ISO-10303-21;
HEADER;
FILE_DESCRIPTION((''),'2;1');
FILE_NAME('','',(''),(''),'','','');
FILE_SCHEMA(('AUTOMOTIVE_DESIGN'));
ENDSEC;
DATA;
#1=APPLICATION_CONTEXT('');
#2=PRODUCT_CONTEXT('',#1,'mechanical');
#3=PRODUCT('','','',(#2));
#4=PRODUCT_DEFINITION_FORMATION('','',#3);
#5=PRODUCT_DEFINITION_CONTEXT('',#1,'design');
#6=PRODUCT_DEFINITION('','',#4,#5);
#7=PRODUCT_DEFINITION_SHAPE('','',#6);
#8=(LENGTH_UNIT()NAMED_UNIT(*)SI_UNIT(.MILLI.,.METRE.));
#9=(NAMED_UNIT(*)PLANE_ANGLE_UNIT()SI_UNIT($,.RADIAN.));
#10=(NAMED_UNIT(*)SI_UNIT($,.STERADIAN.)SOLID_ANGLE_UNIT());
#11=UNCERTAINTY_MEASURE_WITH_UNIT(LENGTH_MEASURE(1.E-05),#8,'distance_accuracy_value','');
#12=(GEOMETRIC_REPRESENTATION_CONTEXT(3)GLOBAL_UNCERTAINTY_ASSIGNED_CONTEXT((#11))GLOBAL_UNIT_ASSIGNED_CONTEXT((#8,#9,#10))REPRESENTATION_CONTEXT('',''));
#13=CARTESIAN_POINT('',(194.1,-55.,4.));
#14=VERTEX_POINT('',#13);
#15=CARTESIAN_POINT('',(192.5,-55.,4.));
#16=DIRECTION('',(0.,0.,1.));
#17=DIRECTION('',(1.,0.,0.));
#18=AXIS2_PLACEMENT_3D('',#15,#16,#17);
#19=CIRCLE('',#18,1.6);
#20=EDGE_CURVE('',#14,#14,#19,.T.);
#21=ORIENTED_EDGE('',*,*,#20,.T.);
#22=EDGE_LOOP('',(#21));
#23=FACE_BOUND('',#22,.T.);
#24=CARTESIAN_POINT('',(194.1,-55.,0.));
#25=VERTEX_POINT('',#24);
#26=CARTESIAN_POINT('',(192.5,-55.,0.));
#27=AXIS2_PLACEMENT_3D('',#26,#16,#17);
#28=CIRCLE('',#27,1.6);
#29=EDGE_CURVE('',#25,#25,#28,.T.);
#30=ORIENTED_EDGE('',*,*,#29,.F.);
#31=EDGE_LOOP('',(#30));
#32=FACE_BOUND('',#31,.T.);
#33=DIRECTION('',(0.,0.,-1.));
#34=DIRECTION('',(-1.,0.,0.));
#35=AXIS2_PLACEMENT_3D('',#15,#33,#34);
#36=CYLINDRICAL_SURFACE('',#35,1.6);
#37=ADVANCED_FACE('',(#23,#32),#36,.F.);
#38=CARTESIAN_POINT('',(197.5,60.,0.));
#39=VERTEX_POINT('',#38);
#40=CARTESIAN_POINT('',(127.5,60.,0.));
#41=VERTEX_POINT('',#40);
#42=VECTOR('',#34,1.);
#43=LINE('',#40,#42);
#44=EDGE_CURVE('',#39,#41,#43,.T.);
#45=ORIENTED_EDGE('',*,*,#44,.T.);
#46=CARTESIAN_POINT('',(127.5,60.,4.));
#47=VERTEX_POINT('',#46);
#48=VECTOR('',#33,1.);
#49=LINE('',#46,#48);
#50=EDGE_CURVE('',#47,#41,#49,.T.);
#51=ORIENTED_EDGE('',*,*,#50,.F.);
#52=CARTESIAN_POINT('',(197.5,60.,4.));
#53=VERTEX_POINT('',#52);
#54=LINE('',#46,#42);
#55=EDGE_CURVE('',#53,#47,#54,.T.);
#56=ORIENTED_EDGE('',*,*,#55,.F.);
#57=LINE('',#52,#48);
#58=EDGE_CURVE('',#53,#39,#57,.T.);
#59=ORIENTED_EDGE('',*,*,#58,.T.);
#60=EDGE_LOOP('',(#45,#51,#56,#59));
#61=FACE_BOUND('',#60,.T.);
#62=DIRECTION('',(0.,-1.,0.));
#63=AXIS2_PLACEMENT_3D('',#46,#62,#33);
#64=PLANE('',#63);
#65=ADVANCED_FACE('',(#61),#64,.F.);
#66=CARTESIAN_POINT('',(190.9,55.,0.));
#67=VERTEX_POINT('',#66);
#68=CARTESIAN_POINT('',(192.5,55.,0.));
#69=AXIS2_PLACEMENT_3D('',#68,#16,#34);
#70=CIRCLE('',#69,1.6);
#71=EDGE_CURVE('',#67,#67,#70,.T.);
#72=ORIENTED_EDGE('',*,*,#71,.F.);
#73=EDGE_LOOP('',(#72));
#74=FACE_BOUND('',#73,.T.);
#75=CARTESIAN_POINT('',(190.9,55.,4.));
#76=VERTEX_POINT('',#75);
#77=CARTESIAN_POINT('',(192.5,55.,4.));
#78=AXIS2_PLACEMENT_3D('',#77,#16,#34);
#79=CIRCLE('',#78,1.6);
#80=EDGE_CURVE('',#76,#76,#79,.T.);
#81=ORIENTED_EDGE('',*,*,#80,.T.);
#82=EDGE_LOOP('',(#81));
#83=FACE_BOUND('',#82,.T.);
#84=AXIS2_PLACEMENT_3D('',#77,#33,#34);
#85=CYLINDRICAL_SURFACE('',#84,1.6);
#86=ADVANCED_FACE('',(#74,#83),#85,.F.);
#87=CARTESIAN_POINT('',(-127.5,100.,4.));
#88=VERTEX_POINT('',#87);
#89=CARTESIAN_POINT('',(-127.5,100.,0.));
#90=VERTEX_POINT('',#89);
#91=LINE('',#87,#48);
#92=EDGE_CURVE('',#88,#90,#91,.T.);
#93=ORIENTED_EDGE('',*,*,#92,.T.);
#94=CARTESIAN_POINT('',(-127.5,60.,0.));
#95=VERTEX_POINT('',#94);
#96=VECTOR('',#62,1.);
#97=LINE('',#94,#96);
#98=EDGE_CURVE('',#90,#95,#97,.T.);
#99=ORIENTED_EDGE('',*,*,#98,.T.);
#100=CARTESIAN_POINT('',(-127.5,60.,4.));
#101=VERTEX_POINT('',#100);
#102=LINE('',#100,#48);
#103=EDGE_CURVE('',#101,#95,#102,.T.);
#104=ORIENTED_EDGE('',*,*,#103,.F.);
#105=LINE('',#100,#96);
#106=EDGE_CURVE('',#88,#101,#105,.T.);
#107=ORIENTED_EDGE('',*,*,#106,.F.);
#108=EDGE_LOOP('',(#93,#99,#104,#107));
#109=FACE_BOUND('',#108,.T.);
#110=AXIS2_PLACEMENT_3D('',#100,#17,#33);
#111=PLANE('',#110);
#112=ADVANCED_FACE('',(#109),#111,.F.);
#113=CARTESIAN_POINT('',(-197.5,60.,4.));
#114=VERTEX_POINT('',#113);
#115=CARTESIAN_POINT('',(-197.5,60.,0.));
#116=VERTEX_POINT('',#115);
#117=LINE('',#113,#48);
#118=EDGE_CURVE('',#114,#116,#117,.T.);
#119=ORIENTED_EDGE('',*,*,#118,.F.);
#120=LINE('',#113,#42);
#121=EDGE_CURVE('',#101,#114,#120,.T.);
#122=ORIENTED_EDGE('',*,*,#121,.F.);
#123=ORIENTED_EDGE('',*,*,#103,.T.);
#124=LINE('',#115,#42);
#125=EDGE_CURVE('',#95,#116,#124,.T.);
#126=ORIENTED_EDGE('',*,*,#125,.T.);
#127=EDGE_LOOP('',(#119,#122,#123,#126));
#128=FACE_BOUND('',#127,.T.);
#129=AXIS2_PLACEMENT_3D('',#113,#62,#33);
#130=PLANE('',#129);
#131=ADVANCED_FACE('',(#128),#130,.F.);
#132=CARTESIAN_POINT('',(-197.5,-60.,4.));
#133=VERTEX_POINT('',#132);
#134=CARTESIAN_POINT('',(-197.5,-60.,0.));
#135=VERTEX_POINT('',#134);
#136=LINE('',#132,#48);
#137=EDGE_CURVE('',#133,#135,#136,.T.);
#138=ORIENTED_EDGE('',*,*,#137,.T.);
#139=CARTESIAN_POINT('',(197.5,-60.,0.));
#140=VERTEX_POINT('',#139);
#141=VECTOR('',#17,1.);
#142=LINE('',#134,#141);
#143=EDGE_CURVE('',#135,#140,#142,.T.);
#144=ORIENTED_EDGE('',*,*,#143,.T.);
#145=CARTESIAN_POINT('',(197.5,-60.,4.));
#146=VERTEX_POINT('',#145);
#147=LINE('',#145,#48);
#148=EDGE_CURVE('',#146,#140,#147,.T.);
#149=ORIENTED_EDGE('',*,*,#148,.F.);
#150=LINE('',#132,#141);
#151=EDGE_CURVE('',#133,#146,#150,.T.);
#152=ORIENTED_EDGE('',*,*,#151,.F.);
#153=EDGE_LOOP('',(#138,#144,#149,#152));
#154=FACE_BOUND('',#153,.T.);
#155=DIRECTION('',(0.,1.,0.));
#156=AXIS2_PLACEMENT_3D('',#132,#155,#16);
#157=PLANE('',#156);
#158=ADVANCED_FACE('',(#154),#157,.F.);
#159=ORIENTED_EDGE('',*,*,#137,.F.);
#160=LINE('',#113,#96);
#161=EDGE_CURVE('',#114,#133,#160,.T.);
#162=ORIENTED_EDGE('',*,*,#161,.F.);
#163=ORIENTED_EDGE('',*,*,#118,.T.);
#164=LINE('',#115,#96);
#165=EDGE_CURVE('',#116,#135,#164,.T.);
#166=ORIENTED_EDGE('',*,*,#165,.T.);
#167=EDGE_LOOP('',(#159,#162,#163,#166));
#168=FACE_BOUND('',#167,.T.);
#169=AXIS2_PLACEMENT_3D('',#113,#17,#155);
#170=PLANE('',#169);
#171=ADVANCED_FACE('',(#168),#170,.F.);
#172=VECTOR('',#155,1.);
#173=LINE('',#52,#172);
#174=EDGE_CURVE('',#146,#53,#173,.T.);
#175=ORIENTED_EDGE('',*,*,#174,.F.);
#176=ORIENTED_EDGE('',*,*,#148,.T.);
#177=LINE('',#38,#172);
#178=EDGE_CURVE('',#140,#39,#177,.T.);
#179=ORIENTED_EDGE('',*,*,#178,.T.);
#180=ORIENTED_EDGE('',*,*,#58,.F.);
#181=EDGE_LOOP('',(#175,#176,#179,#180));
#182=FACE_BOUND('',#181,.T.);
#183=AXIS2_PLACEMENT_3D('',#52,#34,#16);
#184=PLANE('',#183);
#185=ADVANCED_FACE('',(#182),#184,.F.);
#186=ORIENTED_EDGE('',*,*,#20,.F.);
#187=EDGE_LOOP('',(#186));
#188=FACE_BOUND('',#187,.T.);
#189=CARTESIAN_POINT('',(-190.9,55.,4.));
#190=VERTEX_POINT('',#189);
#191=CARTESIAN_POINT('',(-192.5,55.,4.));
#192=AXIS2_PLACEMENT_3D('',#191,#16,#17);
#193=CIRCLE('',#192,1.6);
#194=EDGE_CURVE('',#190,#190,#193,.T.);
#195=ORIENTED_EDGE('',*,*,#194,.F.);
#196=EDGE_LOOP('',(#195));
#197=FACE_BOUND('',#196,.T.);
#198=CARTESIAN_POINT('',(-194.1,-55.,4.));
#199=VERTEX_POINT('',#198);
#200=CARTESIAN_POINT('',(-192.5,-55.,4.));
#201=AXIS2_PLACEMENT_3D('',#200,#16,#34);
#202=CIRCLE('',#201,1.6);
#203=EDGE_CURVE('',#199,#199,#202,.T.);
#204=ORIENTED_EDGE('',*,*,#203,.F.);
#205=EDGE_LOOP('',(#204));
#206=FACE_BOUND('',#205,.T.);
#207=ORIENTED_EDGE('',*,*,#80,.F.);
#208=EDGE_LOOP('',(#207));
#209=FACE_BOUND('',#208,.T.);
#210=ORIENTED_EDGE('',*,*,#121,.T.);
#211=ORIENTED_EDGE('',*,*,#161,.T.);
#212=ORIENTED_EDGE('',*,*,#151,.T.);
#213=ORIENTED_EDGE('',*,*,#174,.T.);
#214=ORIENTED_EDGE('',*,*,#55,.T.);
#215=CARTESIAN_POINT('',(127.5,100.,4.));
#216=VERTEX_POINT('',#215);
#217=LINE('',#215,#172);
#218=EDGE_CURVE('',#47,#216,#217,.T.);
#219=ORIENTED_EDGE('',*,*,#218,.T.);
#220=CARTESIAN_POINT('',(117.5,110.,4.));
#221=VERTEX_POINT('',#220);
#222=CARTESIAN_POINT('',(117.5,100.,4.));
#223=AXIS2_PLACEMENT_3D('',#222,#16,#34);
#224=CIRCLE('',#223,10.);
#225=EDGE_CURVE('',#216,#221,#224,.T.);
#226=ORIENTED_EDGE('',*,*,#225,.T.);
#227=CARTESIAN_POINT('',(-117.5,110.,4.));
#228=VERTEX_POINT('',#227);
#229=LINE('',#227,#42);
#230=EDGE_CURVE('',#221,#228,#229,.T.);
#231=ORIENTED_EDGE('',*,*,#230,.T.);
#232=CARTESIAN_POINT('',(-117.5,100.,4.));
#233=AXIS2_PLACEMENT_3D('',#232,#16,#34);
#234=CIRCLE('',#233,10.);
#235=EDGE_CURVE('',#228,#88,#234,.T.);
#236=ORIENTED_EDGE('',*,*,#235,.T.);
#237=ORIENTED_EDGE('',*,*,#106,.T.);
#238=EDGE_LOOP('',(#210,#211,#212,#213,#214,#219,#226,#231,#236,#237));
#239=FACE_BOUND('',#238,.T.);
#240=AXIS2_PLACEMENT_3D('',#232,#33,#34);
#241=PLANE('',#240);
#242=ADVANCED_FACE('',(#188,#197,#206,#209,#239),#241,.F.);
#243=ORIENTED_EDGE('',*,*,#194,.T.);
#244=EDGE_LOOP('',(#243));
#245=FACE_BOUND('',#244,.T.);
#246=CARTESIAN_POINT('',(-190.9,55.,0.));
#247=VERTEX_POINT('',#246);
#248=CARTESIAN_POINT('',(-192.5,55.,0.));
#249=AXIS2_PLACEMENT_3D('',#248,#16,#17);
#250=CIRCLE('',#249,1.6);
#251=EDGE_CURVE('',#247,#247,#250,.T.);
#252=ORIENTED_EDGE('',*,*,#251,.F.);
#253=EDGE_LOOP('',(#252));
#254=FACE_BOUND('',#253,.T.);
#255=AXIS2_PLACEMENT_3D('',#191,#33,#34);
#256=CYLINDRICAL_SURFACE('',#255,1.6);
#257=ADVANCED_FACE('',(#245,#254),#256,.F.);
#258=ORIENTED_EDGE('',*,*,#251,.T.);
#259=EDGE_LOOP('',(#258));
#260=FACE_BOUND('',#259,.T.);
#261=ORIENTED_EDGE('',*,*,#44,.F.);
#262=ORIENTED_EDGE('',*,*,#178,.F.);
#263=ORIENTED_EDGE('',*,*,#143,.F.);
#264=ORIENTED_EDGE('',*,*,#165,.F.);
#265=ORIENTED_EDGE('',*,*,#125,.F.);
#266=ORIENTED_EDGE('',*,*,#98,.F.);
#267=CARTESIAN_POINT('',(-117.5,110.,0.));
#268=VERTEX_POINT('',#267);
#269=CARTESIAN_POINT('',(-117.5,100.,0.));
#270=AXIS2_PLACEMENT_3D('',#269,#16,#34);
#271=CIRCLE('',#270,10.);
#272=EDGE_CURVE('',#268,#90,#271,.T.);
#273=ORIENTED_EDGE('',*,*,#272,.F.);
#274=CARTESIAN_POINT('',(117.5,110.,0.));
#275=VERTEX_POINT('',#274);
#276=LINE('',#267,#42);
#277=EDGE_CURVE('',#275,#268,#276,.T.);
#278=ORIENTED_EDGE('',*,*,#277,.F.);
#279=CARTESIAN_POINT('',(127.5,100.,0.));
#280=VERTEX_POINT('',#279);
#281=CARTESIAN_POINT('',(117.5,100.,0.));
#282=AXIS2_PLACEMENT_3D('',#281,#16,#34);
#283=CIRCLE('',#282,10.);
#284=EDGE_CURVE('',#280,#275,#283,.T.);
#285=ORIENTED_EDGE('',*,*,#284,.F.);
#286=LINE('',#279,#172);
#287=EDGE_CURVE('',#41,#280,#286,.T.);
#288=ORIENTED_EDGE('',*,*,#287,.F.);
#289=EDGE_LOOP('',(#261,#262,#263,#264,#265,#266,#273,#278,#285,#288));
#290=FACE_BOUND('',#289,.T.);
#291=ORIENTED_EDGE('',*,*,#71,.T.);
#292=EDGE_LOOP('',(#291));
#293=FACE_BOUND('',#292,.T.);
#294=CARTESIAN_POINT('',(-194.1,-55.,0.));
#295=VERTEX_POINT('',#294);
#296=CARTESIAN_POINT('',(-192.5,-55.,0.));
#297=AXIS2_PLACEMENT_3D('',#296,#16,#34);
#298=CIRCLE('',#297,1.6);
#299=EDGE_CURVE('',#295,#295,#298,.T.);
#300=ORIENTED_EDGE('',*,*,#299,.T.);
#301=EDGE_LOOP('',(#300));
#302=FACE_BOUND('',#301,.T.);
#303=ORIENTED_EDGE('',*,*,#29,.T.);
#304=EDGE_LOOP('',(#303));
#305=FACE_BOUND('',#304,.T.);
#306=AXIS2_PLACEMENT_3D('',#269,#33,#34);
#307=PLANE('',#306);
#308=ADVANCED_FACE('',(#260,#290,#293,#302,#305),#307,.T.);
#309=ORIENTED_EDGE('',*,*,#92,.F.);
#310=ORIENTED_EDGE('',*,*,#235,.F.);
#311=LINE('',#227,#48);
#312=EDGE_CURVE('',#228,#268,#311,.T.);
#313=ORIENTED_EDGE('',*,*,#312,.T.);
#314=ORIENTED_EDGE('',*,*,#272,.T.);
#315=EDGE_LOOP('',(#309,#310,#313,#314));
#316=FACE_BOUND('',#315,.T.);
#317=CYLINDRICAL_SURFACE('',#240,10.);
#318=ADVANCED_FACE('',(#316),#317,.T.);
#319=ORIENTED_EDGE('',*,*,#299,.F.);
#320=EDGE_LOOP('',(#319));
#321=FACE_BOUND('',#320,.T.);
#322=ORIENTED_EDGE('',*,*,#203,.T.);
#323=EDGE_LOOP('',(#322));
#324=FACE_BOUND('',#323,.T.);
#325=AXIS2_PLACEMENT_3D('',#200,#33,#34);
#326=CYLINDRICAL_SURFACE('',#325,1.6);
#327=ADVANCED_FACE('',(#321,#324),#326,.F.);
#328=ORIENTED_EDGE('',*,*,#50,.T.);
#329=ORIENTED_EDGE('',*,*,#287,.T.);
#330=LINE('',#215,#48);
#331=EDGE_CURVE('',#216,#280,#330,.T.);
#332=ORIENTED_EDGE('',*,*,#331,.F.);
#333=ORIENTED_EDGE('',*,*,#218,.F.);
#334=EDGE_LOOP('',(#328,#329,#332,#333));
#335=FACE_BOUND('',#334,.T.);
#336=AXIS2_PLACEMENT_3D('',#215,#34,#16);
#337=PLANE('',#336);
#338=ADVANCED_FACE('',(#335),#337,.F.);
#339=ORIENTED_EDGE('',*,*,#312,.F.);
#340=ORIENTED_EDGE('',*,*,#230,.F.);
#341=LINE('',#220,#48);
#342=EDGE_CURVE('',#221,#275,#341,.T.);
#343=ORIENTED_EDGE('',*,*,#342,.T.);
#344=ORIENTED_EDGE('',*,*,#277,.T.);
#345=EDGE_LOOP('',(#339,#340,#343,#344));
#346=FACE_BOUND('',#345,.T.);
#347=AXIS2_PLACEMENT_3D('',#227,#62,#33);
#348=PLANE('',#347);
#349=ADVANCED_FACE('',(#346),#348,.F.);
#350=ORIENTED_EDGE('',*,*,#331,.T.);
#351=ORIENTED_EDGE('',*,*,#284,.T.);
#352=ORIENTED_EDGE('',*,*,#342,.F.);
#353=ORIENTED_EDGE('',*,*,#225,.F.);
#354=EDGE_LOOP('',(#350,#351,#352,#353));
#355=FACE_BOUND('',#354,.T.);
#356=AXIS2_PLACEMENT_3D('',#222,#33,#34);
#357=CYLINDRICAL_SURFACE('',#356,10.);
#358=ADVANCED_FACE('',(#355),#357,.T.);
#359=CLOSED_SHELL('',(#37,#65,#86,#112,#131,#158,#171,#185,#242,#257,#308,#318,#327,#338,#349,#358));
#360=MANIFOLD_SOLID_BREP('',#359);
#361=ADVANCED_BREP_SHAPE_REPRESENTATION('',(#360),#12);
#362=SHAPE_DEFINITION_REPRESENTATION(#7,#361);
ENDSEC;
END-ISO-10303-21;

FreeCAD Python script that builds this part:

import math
import FreeCAD as App
import Part
import Sketcher

V = App.Vector

doc = App.newDocument("Part")
params = doc.addObject("Spreadsheet::Sheet", "Params")
for row, (alias, value) in enumerate([
    ("sketch1_radius", "10 mm"),
    ("sketch1_diameter", "3.2 mm"),
    ("sketch1_width", "70 mm"),
    ("sketch1_width2", "395 mm"),
    ("sketch1_height", "120 mm"),
    ("pad1_length", "4 mm"),
], start=1):
    params.set(f"A{row}", alias)
    params.set(f"B{row}", "=" + value)
    params.setAlias(f"B{row}", alias)

body = doc.addObject("PartDesign::Body", "Body")

# Sketch on XY plane
sketch1 = doc.addObject("Sketcher::SketchObject", "Sketch")
body.addObject(sketch1)
sketch1.AttachmentSupport = (doc.XY_Plane, [""])
sketch1.MapMode = "FlatFace"
sketch1.addGeometry([
    Part.LineSegment(V(-127.5, 60, 0), V(-197.5, 60, 0)),  # 0
    Part.LineSegment(V(-197.5, 60, 0), V(-197.5, -60, 0)),  # 1
    Part.LineSegment(V(-197.5, -60, 0), V(197.5, -60, 0)),  # 2
    Part.LineSegment(V(197.5, -60, 0), V(197.5, 60, 0)),  # 3
    Part.LineSegment(V(197.5, 60, 0), V(127.5, 60, 0)),  # 4
    Part.LineSegment(V(127.5, 60, 0), V(127.5, 100, 0)),  # 5
    Part.ArcOfCircle(Part.Circle(V(117.5, 100, 0), V(0, 0, 1), 10), math.radians(0), math.radians(90)),  # 6
    Part.LineSegment(V(117.5, 110, 0), V(-117.5, 110, 0)),  # 7
    Part.ArcOfCircle(Part.Circle(V(-117.5, 100, 0), V(0, 0, 1), 10), math.radians(90), math.radians(180)),  # 8
    Part.LineSegment(V(-127.5, 100, 0), V(-127.5, 60, 0)),  # 9
    Part.Circle(V(192.5, -55, 0), V(0, 0, 1), 1.6),  # 10
    Part.Circle(V(-192.5, -55, 0), V(0, 0, 1), 1.6),  # 11
    Part.Circle(V(192.5, 55, 0), V(0, 0, 1), 1.6),  # 12
    Part.Circle(V(-192.5, 55, 0), V(0, 0, 1), 1.6),  # 13
], False)
sketch1.addConstraint([
    Sketcher.Constraint("Coincident", 0, 2, 1, 1),
    Sketcher.Constraint("Coincident", 1, 2, 2, 1),
    Sketcher.Constraint("Coincident", 2, 2, 3, 1),
    Sketcher.Constraint("Coincident", 3, 2, 4, 1),
    Sketcher.Constraint("Coincident", 4, 2, 5, 1),
    Sketcher.Constraint("Tangent", 5, 2, 6, 1),
    Sketcher.Constraint("Tangent", 6, 2, 7, 1),
    Sketcher.Constraint("Tangent", 7, 2, 8, 1),
    Sketcher.Constraint("Tangent", 8, 2, 9, 1),
    Sketcher.Constraint("Coincident", 9, 2, 0, 1),
    Sketcher.Constraint("Horizontal", 0),
    Sketcher.Constraint("Vertical", 1),
    Sketcher.Constraint("Horizontal", 2),
    Sketcher.Constraint("Vertical", 3),
    Sketcher.Constraint("Horizontal", 4),
    Sketcher.Constraint("Vertical", 5),
    Sketcher.Constraint("Horizontal", 7),
    Sketcher.Constraint("Vertical", 9),
    Sketcher.Constraint("Equal", 6, 8),
    Sketcher.Constraint("Equal", 10, 11),
    Sketcher.Constraint("Equal", 11, 12),
    Sketcher.Constraint("Equal", 12, 13),
    Sketcher.Constraint("Symmetric", 11, 3, 12, 3, -1, 1),
    Sketcher.Constraint("Symmetric", 10, 3, 13, 3, -1, 1),
    Sketcher.Constraint("Symmetric", 0, 2, 2, 2, -1, 1),
    Sketcher.Constraint("Symmetric", 10, 3, 11, 3, -2),
    Sketcher.Constraint("Symmetric", 4, 2, 9, 2, -2),
    Sketcher.Constraint("Radius", 6, 10.0),
    Sketcher.Constraint("Diameter", 10, 3.2),
    Sketcher.Constraint("DistanceX", 0, 2, 0, 1, 70.0),
    Sketcher.Constraint("DistanceX", 2, 1, 2, 2, 395.0),
    Sketcher.Constraint("DistanceY", 1, 2, 1, 1, 120.0),
    Sketcher.Constraint("DistanceY", 5, 1, 5, 2, 40.0),
    Sketcher.Constraint("DistanceY", 10, 3, -1, 1, 55.0),
    Sketcher.Constraint("DistanceX", 6, 3, 10, 3, 75.0),
])
sketch1.setExpression("Constraints[27]", "Params.sketch1_radius")
sketch1.setExpression("Constraints[28]", "Params.sketch1_diameter")
sketch1.setExpression("Constraints[29]", "Params.sketch1_width")
sketch1.setExpression("Constraints[30]", "Params.sketch1_width2")
sketch1.setExpression("Constraints[31]", "Params.sketch1_height")
pad1 = doc.addObject("PartDesign::Pad", "Pad")
body.addObject(pad1)
pad1.Profile = sketch1
pad1.setExpression("Length", "Params.pad1_length")

doc.recompute()
